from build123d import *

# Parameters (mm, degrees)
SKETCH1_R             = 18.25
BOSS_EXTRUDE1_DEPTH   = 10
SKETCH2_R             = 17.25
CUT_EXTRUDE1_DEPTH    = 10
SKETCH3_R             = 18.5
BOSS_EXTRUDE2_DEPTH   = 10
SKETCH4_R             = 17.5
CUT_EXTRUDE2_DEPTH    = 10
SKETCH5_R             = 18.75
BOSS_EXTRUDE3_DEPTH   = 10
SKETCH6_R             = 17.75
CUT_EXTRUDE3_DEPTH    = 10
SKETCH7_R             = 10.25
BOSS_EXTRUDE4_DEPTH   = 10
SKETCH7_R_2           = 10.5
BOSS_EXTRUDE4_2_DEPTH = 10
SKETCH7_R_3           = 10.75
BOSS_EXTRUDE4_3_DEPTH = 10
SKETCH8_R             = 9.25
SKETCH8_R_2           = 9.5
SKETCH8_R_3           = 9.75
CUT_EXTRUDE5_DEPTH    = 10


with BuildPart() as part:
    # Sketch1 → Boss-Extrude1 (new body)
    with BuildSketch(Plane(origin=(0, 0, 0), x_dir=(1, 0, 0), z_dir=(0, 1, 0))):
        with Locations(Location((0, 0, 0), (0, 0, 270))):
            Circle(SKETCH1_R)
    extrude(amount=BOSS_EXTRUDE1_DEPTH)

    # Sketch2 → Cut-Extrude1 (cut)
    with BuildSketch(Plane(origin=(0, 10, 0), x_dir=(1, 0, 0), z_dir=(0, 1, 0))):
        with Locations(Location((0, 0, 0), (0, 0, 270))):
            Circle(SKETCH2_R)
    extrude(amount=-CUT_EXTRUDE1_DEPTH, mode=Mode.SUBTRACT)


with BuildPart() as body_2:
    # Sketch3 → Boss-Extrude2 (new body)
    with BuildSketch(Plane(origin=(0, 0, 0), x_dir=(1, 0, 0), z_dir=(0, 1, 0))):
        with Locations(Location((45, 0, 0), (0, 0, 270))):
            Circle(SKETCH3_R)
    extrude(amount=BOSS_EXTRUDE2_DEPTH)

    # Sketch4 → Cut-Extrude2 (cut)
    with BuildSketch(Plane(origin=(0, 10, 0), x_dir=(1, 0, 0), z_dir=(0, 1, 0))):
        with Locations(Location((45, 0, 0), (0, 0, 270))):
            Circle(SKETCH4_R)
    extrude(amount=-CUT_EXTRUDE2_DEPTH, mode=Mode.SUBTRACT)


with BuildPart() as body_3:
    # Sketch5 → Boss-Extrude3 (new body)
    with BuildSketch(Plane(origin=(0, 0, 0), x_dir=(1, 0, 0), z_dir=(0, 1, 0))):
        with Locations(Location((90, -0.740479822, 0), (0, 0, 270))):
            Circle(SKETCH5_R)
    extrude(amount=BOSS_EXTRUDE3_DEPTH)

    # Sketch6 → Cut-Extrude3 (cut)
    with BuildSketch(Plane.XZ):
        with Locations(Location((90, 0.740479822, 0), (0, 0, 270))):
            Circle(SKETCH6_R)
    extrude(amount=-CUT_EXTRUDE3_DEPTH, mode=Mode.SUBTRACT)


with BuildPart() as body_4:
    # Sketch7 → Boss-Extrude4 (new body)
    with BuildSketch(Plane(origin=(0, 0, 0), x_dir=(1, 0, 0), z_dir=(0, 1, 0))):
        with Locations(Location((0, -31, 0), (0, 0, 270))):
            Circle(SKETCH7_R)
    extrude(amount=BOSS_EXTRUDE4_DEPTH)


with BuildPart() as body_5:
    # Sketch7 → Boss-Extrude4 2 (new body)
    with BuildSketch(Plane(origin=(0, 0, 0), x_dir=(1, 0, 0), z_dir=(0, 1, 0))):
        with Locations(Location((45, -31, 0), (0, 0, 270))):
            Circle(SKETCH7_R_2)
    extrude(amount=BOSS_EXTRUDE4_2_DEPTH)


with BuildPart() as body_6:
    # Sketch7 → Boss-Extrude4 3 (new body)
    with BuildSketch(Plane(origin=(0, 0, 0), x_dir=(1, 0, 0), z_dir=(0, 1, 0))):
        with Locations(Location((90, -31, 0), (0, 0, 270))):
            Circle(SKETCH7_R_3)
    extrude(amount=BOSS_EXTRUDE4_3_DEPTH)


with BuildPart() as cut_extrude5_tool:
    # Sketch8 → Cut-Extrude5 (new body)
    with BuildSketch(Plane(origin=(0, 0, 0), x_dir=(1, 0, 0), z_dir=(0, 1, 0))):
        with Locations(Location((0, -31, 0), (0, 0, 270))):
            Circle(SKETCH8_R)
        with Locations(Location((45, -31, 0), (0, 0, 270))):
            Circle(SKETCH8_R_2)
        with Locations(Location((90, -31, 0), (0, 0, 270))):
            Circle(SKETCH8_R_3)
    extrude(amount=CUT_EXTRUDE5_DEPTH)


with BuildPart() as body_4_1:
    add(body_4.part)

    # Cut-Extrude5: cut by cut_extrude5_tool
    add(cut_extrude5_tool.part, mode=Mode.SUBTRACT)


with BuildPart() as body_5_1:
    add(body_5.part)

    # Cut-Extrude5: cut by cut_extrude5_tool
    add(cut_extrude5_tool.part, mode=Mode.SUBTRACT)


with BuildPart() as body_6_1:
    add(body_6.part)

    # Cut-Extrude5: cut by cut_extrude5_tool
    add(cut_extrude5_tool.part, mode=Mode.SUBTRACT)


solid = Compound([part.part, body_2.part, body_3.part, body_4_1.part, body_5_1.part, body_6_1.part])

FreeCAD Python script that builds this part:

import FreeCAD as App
import Part
import Sketcher
from FreeCAD import Vector

doc = App.newDocument("Part")
body = doc.addObject("PartDesign::Body", "Body")

# Sketch on XZ plane
sketch1 = body.newObject("Sketcher::SketchObject", "Sketch")
sketch1.AttachmentSupport = (doc.getObject("XZ_Plane"), [""])
sketch1.MapMode = "FlatFace"
sketch1.addGeometry(Part.Circle(Vector(0, 0, 0), Vector(0, 0, 1), 18.25), False)
sketch1.addConstraint([
    Sketcher.Constraint("Coincident", 0, 3, -1, 1),
    Sketcher.Constraint("Diameter", 0, 36.5),
])
pad1 = body.newObject("PartDesign::Pad", "Pad")
pad1.Profile = sketch1
pad1.Length = 10
pad1.Reversed = True

# Sketch on XZ plane
sketch2 = body.newObject("Sketcher::SketchObject", "Sketch001")
sketch2.AttachmentSupport = (doc.getObject("XZ_Plane"), [""])
sketch2.MapMode = "FlatFace"
sketch2.AttachmentOffset = App.Placement(Vector(0, 0, -10), App.Rotation())
sketch2.addGeometry(Part.Circle(Vector(0, 0, 0), Vector(0, 0, 1), 17.25), False)
sketch2.addConstraint([
    Sketcher.Constraint("Coincident", 0, 3, -1, 1),
    Sketcher.Constraint("Diameter", 0, 34.5),
])
pocket1 = body.newObject("PartDesign::Pocket", "Pocket")
pocket1.Profile = sketch2
pocket1.Length = 10
pocket1.Reversed = True
body2 = doc.addObject("PartDesign::Body", "Body001")

# Sketch on XZ plane
sketch3 = body2.newObject("Sketcher::SketchObject", "Sketch002")
sketch3.AttachmentSupport = (doc.getObject("XZ_Plane001"), [""])
sketch3.MapMode = "FlatFace"
sketch3.addGeometry(Part.Circle(Vector(45, 0, 0), Vector(0, 0, 1), 18.5), False)
sketch3.addConstraint([
    Sketcher.Constraint("PointOnObject", 0, 3, -1),
    Sketcher.Constraint("Diameter", 0, 37.0),
    Sketcher.Constraint("DistanceX", -1, 1, 0, 3, 45.0),
])
pad2 = body2.newObject("PartDesign::Pad", "Pad001")
pad2.Profile = sketch3
pad2.Length = 10
pad2.Reversed = True

# Sketch on XZ plane
sketch4 = body2.newObject("Sketcher::SketchObject", "Sketch003")
sketch4.AttachmentSupport = (doc.getObject("XZ_Plane001"), [""])
sketch4.MapMode = "FlatFace"
sketch4.AttachmentOffset = App.Placement(Vector(0, 0, -10), App.Rotation())
sketch4.addGeometry(Part.Circle(Vector(45, 0, 0), Vector(0, 0, 1), 17.5), False)
sketch4.addConstraint([
    Sketcher.Constraint("PointOnObject", 0, 3, -1),
    Sketcher.Constraint("Diameter", 0, 35.0),
    Sketcher.Constraint("DistanceX", -1, 1, 0, 3, 45.0),
])
pocket2 = body2.newObject("PartDesign::Pocket", "Pocket001")
pocket2.Profile = sketch4
pocket2.Length = 10
pocket2.Reversed = True
body3 = doc.addObject("PartDesign::Body", "Body002")

# Sketch on XZ plane
sketch5 = body3.newObject("Sketcher::SketchObject", "Sketch004")
sketch5.AttachmentSupport = (doc.getObject("XZ_Plane002"), [""])
sketch5.MapMode = "FlatFace"
sketch5.addGeometry(Part.Circle(Vector(90, 0.74048, 0), Vector(0, 0, 1), 18.75), False)
sketch5.addConstraint([
    Sketcher.Constraint("Diameter", 0, 37.5),
    Sketcher.Constraint("DistanceX", -1, 1, 0, 3, 90.0),
    Sketcher.Constraint("DistanceY", -1, 1, 0, 3, 0.74048),
])
pad3 = body3.newObject("PartDesign::Pad", "Pad002")
pad3.Profile = sketch5
pad3.Length = 10
pad3.Reversed = True

# Sketch on XZ plane
sketch6 = body3.newObject("Sketcher::SketchObject", "Sketch005")
sketch6.AttachmentSupport = (doc.getObject("XZ_Plane002"), [""])
sketch6.MapMode = "FlatFace"
sketch6.addGeometry(Part.Circle(Vector(90, 0.74048, 0), Vector(0, 0, 1), 17.75), False)
sketch6.addConstraint([
    Sketcher.Constraint("Diameter", 0, 35.5),
    Sketcher.Constraint("DistanceX", -1, 1, 0, 3, 90.0),
    Sketcher.Constraint("DistanceY", -1, 1, 0, 3, 0.74048),
])
pocket3 = body3.newObject("PartDesign::Pocket", "Pocket002")
pocket3.Profile = sketch6
pocket3.Length = 10
body4 = doc.addObject("PartDesign::Body", "Body003")

# Sketch on XZ plane
sketch7 = body4.newObject("Sketcher::SketchObject", "Sketch006")
sketch7.AttachmentSupport = (doc.getObject("XZ_Plane003"), [""])
sketch7.MapMode = "FlatFace"
sketch7.addGeometry(Part.Circle(Vector(0, 31, 0), Vector(0, 0, 1), 10.25), False)
sketch7.addConstraint([
    Sketcher.Constraint("PointOnObject", 0, 3, -2),
    Sketcher.Constraint("Diameter", 0, 20.5),
    Sketcher.Constraint("DistanceY", -1, 1, 0, 3, 31.0),
])
pad4 = body4.newObject("PartDesign::Pad", "Pad003")
pad4.Profile = sketch7
pad4.Length = 10
pad4.Reversed = True
body5 = doc.addObject("PartDesign::Body", "Body004")

# Sketch on XZ plane
sketch8 = body5.newObject("Sketcher::SketchObject", "Sketch007")
sketch8.AttachmentSupport = (doc.getObject("XZ_Plane004"), [""])
sketch8.MapMode = "FlatFace"
sketch8.addGeometry(Part.Circle(Vector(45, 31, 0), Vector(0, 0, 1), 10.5), False)
sketch8.addConstraint([
    Sketcher.Constraint("Diameter", 0, 21.0),
    Sketcher.Constraint("DistanceX", -1, 1, 0, 3, 45.0),
    Sketcher.Constraint("DistanceY", -1, 1, 0, 3, 31.0),
])
pad5 = body5.newObject("PartDesign::Pad", "Pad004")
pad5.Profile = sketch8
pad5.Length = 10
pad5.Reversed = True
body6 = doc.addObject("PartDesign::Body", "Body005")

# Sketch on XZ plane
sketch9 = body6.newObject("Sketcher::SketchObject", "Sketch008")
sketch9.AttachmentSupport = (doc.getObject("XZ_Plane005"), [""])
sketch9.MapMode = "FlatFace"
sketch9.addGeometry(Part.Circle(Vector(90, 31, 0), Vector(0, 0, 1), 10.75), False)
sketch9.addConstraint([
    Sketcher.Constraint("Diameter", 0, 21.5),
    Sketcher.Constraint("DistanceX", -1, 1, 0, 3, 90.0),
    Sketcher.Constraint("DistanceY", -1, 1, 0, 3, 31.0),
])
pad6 = body6.newObject("PartDesign::Pad", "Pad005")
pad6.Profile = sketch9
pad6.Length = 10
pad6.Reversed = True
body7 = doc.addObject("PartDesign::Body", "Body006")
body7.AllowCompound = True

# Sketch on XZ plane
sketch10 = body7.newObject("Sketcher::SketchObject", "Sketch009")
sketch10.AttachmentSupport = (doc.getObject("XZ_Plane006"), [""])
sketch10.MapMode = "FlatFace"
sketch10.addGeometry([
    Part.Circle(Vector(0, 31, 0), Vector(0, 0, 1), 9.25),
    Part.Circle(Vector(45, 31, 0), Vector(0, 0, 1), 9.5),
    Part.Circle(Vector(90, 31, 0), Vector(0, 0, 1), 9.75),
], False)
sketch10.addConstraint([
    Sketcher.Constraint("PointOnObject", 0, 3, -2),
    Sketcher.Constraint("Horizontal", 0, 3, 1, 3),
    Sketcher.Constraint("Horizontal", 1, 3, 2, 3),
    Sketcher.Constraint("Diameter", 1, 19.0),
    Sketcher.Constraint("Diameter", 0, 18.5),
    Sketcher.Constraint("Diameter", 2, 19.5),
    Sketcher.Constraint("DistanceY", -1, 1, 0, 3, 31.0),
    Sketcher.Constraint("DistanceX", -1, 1, 1, 3, 45.0),
    Sketcher.Constraint("DistanceX", -1, 1, 2, 3, 90.0),
])
pad7 = body7.newObject("PartDesign::Pad", "Pad006")
pad7.Profile = sketch10
pad7.Length = 10
pad7.Reversed = True
doc.recompute()

body8 = doc.addObject("PartDesign::Body", "Body007")
body8.BaseFeature = body7
boolean = body4.newObject("PartDesign::Boolean", "Boolean")
boolean.Type = "Cut"
boolean.addObjects([body8])
doc.recompute()

body9 = doc.addObject("PartDesign::Body", "Body008")
body9.BaseFeature = body7
boolean2 = body5.newObject("PartDesign::Boolean", "Boolean001")
boolean2.Type = "Cut"
boolean2.addObjects([body9])
doc.recompute()

boolean3 = body6.newObject("PartDesign::Boolean", "Boolean002")
boolean3.Type = "Cut"
boolean3.addObjects([body7])

doc.recompute()
